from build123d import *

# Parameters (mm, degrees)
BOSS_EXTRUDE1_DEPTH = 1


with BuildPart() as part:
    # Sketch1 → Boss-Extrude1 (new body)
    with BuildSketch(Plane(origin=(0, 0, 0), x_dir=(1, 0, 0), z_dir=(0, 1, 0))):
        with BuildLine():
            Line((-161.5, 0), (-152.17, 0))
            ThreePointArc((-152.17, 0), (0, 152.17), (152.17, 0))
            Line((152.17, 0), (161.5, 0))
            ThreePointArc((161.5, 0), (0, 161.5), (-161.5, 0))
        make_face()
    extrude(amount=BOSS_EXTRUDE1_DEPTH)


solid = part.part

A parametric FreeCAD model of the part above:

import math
import FreeCAD as App
import Part
import Sketcher
from FreeCAD import Vector
Q = App.Units.Quantity

doc = App.newDocument("Part")
body = doc.addObject("PartDesign::Body", "Body")

# Sketch on XZ plane
sketch1 = body.newObject("Sketcher::SketchObject", "Sketch")
sketch1.AttachmentSupport = (doc.getObject("XZ_Plane"), [""])
sketch1.MapMode = "FlatFace"
sketch1.addGeometry([
    Part.LineSegment(Vector(-161.5, 0, 0), Vector(-152.17, 0, 0)),
    Part.ArcOfCircle(Part.Circle(Vector(0, 0, 0), Vector(0, 0, 1), 152.17), math.radians(180), math.radians(360)),
    Part.LineSegment(Vector(152.17, 0, 0), Vector(161.5, 0, 0)),
    Part.ArcOfCircle(Part.Circle(Vector(0, 0, 0), Vector(0, 0, 1), 161.5), math.radians(180), math.radians(360)),
], False)
sketch1.addConstraint([
    Sketcher.Constraint("Coincident", 0, 2, 1, 1),
    Sketcher.Constraint("Coincident", 1, 2, 2, 1),
    Sketcher.Constraint("Coincident", 2, 2, 3, 2),
    Sketcher.Constraint("Coincident", 3, 1, 0, 1),
    Sketcher.Constraint("Horizontal", 0),
    Sketcher.Constraint("Horizontal", 2),
    Sketcher.Constraint("Coincident", 1, 3, -1, 1),
    Sketcher.Constraint("Coincident", 3, 3, -1, 1),
    Sketcher.Constraint("PointOnObject", 0, 2, -1),
    Sketcher.Constraint("PointOnObject", 1, 2, -1),
    Sketcher.Constraint("Radius", 3, Q("161.5 mm")),
    Sketcher.Constraint("Radius", 1, Q("152.17 mm")),
])
pad1 = body.newObject("PartDesign::Pad", "Pad")
pad1.Profile = sketch1
pad1.Length = 1
pad1.Reversed = True

doc.recompute()
